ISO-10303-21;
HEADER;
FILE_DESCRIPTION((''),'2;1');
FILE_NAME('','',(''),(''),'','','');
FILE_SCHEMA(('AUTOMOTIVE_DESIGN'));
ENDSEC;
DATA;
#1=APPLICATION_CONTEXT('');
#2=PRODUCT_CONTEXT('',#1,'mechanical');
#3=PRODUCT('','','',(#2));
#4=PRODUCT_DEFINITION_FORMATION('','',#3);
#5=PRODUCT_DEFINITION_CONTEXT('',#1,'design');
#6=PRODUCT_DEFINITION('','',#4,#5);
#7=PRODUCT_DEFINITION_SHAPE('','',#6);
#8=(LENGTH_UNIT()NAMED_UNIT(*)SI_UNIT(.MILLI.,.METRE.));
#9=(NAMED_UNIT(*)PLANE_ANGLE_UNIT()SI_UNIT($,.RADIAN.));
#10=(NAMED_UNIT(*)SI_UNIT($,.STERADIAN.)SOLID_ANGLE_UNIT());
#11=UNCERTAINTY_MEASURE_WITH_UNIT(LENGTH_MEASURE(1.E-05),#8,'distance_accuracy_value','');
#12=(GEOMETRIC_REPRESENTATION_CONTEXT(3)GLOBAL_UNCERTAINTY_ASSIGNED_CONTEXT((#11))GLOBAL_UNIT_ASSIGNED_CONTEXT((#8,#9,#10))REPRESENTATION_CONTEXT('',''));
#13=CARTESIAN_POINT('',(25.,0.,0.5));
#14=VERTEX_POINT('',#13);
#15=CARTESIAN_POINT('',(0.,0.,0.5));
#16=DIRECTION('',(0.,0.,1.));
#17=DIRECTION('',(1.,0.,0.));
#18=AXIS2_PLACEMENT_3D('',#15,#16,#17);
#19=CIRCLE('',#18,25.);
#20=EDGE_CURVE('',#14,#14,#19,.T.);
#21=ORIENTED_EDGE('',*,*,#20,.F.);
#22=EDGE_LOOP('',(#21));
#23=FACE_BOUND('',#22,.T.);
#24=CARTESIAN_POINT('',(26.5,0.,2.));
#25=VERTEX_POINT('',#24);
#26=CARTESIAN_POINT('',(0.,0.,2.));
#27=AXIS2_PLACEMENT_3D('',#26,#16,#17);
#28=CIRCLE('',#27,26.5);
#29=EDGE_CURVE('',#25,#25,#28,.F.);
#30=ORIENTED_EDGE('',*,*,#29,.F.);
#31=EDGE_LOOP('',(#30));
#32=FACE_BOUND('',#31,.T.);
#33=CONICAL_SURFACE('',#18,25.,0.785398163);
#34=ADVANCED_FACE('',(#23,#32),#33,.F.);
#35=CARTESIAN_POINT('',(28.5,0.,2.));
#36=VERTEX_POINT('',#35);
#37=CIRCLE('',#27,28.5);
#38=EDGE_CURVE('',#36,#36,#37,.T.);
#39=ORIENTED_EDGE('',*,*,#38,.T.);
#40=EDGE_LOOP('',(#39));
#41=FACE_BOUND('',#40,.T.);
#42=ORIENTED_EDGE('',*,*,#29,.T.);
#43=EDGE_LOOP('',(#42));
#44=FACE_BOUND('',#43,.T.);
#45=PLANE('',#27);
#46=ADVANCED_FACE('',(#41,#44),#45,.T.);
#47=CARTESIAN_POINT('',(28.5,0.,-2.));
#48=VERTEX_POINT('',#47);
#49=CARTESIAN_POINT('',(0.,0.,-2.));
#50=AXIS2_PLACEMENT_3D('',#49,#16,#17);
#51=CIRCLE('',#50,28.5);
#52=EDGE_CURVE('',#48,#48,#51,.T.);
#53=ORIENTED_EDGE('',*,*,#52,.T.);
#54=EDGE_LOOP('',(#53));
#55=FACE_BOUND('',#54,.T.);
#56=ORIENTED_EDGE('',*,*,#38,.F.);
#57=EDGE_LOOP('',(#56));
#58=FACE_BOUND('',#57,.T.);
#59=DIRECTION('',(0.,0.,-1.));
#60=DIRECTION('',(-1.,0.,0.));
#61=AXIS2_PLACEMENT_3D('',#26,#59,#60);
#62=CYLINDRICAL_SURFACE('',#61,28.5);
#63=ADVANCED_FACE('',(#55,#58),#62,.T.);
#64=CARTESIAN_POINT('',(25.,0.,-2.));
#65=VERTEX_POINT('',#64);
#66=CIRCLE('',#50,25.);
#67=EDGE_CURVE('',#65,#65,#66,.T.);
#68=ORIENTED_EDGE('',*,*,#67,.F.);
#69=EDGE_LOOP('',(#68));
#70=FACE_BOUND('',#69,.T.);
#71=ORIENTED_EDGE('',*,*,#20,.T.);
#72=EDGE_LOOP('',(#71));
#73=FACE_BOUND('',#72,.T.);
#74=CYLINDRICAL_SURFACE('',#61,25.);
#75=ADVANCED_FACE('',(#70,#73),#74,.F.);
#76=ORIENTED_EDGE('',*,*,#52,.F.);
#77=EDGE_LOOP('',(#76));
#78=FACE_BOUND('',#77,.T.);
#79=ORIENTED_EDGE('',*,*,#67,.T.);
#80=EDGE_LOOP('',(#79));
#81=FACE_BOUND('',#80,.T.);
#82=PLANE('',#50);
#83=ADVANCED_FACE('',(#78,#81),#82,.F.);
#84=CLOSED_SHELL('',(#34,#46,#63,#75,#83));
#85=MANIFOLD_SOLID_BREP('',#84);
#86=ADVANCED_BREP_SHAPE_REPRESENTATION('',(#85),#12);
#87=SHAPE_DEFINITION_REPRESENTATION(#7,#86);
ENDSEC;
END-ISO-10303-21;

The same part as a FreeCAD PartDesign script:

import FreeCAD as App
import Part
import Sketcher

V = App.Vector
Q = App.Units.Quantity


def edges_at(feature, points):
    """Names of the edges that pass closest to the given points."""
    edges = feature.Shape.Edges
    near = lambda p: min(range(len(edges)), key=lambda i: edges[i].distToShape(Part.Vertex(*p))[0])
    return sorted({f"Edge{near(p) + 1}" for p in points})

doc = App.newDocument("Part")
body = doc.addObject("PartDesign::Body", "Body")

# Sketch on XY plane
sketch1 = body.newObject("Sketcher::SketchObject", "Sketch")
sketch1.AttachmentSupport = (doc.getObject("XY_Plane"), [""])
sketch1.MapMode = "FlatFace"
sketch1.addGeometry(Part.Circle(V(0, 0, 0), V(0, 0, 1), 28), False)
sketch1.addGeometry(Part.Circle(V(0, 0, 0), V(0, 0, 1), 25), False)
sketch1.addConstraint(Sketcher.Constraint("Coincident", 0, 3, -1, 1))
sketch1.addConstraint(Sketcher.Constraint("Coincident", 1, 3, -1, 1))
sketch1.addConstraint(Sketcher.Constraint("Diameter", 0, Q("57 mm")))
sketch1.addConstraint(Sketcher.Constraint("Diameter", 1, Q("50 mm")))
pad1 = body.newObject("PartDesign::Pad", "Pad")
pad1.Profile = sketch1
pad1.Length = 4
pad1.Midplane = True
doc.recompute()

chamfer = body.newObject("PartDesign::Chamfer", "Chamfer")
chamfer.Base = (pad1, edges_at(pad1, [(-25, 0, 2)]))
chamfer.Size = 1.5

doc.recompute()
